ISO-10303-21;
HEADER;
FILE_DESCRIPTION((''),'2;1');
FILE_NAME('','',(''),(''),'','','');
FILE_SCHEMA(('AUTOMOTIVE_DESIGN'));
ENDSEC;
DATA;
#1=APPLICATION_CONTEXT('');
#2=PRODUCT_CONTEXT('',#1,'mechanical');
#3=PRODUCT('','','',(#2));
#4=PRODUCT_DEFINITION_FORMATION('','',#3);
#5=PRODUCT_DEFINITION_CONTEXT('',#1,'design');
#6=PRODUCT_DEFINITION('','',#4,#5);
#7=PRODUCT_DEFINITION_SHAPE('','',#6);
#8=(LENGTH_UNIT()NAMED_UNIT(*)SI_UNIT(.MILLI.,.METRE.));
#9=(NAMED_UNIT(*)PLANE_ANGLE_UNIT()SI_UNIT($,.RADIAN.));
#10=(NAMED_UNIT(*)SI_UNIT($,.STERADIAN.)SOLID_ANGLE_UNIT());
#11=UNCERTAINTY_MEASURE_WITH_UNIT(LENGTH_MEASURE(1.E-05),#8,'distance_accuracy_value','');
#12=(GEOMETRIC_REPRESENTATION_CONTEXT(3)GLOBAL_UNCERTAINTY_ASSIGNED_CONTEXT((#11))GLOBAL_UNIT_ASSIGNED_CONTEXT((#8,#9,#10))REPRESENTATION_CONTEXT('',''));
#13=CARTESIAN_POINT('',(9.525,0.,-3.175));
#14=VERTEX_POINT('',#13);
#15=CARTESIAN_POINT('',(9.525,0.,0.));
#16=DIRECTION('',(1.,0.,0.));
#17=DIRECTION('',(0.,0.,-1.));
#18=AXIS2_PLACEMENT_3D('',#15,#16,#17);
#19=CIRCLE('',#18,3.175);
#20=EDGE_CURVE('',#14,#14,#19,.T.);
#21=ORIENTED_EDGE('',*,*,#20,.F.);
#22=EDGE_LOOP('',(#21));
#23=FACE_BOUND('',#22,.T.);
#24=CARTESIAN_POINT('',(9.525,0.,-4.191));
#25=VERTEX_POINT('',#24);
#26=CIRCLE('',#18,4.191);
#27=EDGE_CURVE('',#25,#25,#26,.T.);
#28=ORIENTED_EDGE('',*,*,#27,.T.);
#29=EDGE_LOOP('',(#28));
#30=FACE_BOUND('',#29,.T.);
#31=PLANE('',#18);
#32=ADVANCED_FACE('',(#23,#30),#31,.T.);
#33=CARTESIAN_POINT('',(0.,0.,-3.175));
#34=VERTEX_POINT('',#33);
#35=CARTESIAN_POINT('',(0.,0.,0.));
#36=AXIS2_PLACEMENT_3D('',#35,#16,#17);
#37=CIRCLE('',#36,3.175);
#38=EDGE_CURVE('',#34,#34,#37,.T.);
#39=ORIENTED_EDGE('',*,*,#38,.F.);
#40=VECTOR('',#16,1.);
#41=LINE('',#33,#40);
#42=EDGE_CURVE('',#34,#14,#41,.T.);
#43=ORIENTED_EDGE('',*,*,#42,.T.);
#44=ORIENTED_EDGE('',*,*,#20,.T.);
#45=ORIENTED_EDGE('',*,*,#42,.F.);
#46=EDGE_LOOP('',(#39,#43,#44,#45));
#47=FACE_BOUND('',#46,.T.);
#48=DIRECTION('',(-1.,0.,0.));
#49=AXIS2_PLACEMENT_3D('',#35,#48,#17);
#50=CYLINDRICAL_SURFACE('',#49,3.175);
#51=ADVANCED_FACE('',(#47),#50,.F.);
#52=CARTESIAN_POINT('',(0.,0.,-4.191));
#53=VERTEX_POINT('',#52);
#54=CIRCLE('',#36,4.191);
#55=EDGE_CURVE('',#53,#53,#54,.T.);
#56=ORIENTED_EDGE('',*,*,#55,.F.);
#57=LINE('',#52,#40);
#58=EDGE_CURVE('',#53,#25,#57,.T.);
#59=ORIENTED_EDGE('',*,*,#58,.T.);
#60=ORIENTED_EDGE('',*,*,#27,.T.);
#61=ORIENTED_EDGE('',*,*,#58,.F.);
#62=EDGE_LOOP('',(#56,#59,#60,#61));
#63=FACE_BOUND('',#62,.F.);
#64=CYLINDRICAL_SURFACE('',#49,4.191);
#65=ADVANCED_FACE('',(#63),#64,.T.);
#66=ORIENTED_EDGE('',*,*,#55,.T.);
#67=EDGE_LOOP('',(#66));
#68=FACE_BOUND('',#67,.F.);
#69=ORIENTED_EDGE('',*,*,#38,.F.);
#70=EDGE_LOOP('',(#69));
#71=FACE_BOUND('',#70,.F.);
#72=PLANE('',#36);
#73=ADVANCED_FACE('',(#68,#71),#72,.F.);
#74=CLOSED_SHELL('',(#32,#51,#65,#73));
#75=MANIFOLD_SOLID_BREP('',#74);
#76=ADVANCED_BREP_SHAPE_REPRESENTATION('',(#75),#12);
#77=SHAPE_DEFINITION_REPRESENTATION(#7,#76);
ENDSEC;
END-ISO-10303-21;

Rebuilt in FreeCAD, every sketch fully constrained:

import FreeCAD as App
import Part
import Sketcher

V = App.Vector
Q = App.Units.Quantity

doc = App.newDocument("Part")
body = doc.addObject("PartDesign::Body", "Body")

sketch1 = body.newObject("Sketcher::SketchObject", "Sketch")
sketch1.AttachmentSupport = (doc.getObject("YZ_Plane"), [""])
sketch1.MapMode = "FlatFace"
sketch1.addGeometry([
    Part.Circle(V(0, 0, 0), V(0, 0, 1), 4.2),
    Part.Circle(V(0, 0, 0), V(0, 0, 1), 3.2),
], False)
sketch1.addConstraint([
    Sketcher.Constraint("Coincident", 0, 3, -1, 1),
    Sketcher.Constraint("Coincident", 1, 3, -1, 1),
    Sketcher.Constraint("Diameter", 0, Q("0.33 in")),
    Sketcher.Constraint("Diameter", 1, Q("0.25 in")),
])
pad1 = body.newObject("PartDesign::Pad", "Pad")
pad1.Profile = sketch1
pad1.Length = Q("0.375 in")

doc.recompute()
